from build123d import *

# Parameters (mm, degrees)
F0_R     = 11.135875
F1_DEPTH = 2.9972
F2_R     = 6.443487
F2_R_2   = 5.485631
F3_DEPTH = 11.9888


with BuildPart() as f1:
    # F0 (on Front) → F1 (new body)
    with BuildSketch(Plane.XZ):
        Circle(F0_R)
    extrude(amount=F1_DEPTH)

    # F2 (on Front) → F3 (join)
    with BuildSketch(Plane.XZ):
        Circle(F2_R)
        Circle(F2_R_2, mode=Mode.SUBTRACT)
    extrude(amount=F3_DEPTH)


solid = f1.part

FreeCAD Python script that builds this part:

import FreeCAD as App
import Part
import Sketcher
Q = App.Units.Quantity

doc = App.newDocument("Part")
body = doc.addObject("PartDesign::Body", "Body")

# Sketch on XZ plane
sketch1 = body.newObject("Sketcher::SketchObject", "Sketch")
sketch1.AttachmentSupport = (doc.getObject("XZ_Plane"), [""])
sketch1.MapMode = "FlatFace"
sketch1.addGeometry(Part.Circle(App.Vector(0, 0, 0), App.Vector(0, 0, 1), 11.135875), False)
sketch1.addConstraint([
    Sketcher.Constraint("Coincident", 0, 3, -1, 1),
    Sketcher.Constraint("Diameter", 0, 22.27175),
])
pad1 = body.newObject("PartDesign::Pad", "Pad")
pad1.Profile = sketch1
pad1.Length = Q("0.118 in")

# Sketch on XZ plane
sketch2 = body.newObject("Sketcher::SketchObject", "Sketch001")
sketch2.AttachmentSupport = (doc.getObject("XZ_Plane"), [""])
sketch2.MapMode = "FlatFace"
sketch2.addGeometry([
    Part.Circle(App.Vector(0, 0, 0), App.Vector(0, 0, 1), 6.443487),
    Part.Circle(App.Vector(0, 0, 0), App.Vector(0, 0, 1), 5.485631),
], False)
sketch2.addConstraint([
    Sketcher.Constraint("Coincident", 0, 3, -1, 1),
    Sketcher.Constraint("Coincident", 1, 3, -1, 1),
    Sketcher.Constraint("Diameter", 0, 12.886974),
    Sketcher.Constraint("Diameter", 1, 10.971262),
])
pad2 = body.newObject("PartDesign::Pad", "Pad001")
pad2.Profile = sketch2
pad2.Length = Q("0.472 in")

doc.recompute()
